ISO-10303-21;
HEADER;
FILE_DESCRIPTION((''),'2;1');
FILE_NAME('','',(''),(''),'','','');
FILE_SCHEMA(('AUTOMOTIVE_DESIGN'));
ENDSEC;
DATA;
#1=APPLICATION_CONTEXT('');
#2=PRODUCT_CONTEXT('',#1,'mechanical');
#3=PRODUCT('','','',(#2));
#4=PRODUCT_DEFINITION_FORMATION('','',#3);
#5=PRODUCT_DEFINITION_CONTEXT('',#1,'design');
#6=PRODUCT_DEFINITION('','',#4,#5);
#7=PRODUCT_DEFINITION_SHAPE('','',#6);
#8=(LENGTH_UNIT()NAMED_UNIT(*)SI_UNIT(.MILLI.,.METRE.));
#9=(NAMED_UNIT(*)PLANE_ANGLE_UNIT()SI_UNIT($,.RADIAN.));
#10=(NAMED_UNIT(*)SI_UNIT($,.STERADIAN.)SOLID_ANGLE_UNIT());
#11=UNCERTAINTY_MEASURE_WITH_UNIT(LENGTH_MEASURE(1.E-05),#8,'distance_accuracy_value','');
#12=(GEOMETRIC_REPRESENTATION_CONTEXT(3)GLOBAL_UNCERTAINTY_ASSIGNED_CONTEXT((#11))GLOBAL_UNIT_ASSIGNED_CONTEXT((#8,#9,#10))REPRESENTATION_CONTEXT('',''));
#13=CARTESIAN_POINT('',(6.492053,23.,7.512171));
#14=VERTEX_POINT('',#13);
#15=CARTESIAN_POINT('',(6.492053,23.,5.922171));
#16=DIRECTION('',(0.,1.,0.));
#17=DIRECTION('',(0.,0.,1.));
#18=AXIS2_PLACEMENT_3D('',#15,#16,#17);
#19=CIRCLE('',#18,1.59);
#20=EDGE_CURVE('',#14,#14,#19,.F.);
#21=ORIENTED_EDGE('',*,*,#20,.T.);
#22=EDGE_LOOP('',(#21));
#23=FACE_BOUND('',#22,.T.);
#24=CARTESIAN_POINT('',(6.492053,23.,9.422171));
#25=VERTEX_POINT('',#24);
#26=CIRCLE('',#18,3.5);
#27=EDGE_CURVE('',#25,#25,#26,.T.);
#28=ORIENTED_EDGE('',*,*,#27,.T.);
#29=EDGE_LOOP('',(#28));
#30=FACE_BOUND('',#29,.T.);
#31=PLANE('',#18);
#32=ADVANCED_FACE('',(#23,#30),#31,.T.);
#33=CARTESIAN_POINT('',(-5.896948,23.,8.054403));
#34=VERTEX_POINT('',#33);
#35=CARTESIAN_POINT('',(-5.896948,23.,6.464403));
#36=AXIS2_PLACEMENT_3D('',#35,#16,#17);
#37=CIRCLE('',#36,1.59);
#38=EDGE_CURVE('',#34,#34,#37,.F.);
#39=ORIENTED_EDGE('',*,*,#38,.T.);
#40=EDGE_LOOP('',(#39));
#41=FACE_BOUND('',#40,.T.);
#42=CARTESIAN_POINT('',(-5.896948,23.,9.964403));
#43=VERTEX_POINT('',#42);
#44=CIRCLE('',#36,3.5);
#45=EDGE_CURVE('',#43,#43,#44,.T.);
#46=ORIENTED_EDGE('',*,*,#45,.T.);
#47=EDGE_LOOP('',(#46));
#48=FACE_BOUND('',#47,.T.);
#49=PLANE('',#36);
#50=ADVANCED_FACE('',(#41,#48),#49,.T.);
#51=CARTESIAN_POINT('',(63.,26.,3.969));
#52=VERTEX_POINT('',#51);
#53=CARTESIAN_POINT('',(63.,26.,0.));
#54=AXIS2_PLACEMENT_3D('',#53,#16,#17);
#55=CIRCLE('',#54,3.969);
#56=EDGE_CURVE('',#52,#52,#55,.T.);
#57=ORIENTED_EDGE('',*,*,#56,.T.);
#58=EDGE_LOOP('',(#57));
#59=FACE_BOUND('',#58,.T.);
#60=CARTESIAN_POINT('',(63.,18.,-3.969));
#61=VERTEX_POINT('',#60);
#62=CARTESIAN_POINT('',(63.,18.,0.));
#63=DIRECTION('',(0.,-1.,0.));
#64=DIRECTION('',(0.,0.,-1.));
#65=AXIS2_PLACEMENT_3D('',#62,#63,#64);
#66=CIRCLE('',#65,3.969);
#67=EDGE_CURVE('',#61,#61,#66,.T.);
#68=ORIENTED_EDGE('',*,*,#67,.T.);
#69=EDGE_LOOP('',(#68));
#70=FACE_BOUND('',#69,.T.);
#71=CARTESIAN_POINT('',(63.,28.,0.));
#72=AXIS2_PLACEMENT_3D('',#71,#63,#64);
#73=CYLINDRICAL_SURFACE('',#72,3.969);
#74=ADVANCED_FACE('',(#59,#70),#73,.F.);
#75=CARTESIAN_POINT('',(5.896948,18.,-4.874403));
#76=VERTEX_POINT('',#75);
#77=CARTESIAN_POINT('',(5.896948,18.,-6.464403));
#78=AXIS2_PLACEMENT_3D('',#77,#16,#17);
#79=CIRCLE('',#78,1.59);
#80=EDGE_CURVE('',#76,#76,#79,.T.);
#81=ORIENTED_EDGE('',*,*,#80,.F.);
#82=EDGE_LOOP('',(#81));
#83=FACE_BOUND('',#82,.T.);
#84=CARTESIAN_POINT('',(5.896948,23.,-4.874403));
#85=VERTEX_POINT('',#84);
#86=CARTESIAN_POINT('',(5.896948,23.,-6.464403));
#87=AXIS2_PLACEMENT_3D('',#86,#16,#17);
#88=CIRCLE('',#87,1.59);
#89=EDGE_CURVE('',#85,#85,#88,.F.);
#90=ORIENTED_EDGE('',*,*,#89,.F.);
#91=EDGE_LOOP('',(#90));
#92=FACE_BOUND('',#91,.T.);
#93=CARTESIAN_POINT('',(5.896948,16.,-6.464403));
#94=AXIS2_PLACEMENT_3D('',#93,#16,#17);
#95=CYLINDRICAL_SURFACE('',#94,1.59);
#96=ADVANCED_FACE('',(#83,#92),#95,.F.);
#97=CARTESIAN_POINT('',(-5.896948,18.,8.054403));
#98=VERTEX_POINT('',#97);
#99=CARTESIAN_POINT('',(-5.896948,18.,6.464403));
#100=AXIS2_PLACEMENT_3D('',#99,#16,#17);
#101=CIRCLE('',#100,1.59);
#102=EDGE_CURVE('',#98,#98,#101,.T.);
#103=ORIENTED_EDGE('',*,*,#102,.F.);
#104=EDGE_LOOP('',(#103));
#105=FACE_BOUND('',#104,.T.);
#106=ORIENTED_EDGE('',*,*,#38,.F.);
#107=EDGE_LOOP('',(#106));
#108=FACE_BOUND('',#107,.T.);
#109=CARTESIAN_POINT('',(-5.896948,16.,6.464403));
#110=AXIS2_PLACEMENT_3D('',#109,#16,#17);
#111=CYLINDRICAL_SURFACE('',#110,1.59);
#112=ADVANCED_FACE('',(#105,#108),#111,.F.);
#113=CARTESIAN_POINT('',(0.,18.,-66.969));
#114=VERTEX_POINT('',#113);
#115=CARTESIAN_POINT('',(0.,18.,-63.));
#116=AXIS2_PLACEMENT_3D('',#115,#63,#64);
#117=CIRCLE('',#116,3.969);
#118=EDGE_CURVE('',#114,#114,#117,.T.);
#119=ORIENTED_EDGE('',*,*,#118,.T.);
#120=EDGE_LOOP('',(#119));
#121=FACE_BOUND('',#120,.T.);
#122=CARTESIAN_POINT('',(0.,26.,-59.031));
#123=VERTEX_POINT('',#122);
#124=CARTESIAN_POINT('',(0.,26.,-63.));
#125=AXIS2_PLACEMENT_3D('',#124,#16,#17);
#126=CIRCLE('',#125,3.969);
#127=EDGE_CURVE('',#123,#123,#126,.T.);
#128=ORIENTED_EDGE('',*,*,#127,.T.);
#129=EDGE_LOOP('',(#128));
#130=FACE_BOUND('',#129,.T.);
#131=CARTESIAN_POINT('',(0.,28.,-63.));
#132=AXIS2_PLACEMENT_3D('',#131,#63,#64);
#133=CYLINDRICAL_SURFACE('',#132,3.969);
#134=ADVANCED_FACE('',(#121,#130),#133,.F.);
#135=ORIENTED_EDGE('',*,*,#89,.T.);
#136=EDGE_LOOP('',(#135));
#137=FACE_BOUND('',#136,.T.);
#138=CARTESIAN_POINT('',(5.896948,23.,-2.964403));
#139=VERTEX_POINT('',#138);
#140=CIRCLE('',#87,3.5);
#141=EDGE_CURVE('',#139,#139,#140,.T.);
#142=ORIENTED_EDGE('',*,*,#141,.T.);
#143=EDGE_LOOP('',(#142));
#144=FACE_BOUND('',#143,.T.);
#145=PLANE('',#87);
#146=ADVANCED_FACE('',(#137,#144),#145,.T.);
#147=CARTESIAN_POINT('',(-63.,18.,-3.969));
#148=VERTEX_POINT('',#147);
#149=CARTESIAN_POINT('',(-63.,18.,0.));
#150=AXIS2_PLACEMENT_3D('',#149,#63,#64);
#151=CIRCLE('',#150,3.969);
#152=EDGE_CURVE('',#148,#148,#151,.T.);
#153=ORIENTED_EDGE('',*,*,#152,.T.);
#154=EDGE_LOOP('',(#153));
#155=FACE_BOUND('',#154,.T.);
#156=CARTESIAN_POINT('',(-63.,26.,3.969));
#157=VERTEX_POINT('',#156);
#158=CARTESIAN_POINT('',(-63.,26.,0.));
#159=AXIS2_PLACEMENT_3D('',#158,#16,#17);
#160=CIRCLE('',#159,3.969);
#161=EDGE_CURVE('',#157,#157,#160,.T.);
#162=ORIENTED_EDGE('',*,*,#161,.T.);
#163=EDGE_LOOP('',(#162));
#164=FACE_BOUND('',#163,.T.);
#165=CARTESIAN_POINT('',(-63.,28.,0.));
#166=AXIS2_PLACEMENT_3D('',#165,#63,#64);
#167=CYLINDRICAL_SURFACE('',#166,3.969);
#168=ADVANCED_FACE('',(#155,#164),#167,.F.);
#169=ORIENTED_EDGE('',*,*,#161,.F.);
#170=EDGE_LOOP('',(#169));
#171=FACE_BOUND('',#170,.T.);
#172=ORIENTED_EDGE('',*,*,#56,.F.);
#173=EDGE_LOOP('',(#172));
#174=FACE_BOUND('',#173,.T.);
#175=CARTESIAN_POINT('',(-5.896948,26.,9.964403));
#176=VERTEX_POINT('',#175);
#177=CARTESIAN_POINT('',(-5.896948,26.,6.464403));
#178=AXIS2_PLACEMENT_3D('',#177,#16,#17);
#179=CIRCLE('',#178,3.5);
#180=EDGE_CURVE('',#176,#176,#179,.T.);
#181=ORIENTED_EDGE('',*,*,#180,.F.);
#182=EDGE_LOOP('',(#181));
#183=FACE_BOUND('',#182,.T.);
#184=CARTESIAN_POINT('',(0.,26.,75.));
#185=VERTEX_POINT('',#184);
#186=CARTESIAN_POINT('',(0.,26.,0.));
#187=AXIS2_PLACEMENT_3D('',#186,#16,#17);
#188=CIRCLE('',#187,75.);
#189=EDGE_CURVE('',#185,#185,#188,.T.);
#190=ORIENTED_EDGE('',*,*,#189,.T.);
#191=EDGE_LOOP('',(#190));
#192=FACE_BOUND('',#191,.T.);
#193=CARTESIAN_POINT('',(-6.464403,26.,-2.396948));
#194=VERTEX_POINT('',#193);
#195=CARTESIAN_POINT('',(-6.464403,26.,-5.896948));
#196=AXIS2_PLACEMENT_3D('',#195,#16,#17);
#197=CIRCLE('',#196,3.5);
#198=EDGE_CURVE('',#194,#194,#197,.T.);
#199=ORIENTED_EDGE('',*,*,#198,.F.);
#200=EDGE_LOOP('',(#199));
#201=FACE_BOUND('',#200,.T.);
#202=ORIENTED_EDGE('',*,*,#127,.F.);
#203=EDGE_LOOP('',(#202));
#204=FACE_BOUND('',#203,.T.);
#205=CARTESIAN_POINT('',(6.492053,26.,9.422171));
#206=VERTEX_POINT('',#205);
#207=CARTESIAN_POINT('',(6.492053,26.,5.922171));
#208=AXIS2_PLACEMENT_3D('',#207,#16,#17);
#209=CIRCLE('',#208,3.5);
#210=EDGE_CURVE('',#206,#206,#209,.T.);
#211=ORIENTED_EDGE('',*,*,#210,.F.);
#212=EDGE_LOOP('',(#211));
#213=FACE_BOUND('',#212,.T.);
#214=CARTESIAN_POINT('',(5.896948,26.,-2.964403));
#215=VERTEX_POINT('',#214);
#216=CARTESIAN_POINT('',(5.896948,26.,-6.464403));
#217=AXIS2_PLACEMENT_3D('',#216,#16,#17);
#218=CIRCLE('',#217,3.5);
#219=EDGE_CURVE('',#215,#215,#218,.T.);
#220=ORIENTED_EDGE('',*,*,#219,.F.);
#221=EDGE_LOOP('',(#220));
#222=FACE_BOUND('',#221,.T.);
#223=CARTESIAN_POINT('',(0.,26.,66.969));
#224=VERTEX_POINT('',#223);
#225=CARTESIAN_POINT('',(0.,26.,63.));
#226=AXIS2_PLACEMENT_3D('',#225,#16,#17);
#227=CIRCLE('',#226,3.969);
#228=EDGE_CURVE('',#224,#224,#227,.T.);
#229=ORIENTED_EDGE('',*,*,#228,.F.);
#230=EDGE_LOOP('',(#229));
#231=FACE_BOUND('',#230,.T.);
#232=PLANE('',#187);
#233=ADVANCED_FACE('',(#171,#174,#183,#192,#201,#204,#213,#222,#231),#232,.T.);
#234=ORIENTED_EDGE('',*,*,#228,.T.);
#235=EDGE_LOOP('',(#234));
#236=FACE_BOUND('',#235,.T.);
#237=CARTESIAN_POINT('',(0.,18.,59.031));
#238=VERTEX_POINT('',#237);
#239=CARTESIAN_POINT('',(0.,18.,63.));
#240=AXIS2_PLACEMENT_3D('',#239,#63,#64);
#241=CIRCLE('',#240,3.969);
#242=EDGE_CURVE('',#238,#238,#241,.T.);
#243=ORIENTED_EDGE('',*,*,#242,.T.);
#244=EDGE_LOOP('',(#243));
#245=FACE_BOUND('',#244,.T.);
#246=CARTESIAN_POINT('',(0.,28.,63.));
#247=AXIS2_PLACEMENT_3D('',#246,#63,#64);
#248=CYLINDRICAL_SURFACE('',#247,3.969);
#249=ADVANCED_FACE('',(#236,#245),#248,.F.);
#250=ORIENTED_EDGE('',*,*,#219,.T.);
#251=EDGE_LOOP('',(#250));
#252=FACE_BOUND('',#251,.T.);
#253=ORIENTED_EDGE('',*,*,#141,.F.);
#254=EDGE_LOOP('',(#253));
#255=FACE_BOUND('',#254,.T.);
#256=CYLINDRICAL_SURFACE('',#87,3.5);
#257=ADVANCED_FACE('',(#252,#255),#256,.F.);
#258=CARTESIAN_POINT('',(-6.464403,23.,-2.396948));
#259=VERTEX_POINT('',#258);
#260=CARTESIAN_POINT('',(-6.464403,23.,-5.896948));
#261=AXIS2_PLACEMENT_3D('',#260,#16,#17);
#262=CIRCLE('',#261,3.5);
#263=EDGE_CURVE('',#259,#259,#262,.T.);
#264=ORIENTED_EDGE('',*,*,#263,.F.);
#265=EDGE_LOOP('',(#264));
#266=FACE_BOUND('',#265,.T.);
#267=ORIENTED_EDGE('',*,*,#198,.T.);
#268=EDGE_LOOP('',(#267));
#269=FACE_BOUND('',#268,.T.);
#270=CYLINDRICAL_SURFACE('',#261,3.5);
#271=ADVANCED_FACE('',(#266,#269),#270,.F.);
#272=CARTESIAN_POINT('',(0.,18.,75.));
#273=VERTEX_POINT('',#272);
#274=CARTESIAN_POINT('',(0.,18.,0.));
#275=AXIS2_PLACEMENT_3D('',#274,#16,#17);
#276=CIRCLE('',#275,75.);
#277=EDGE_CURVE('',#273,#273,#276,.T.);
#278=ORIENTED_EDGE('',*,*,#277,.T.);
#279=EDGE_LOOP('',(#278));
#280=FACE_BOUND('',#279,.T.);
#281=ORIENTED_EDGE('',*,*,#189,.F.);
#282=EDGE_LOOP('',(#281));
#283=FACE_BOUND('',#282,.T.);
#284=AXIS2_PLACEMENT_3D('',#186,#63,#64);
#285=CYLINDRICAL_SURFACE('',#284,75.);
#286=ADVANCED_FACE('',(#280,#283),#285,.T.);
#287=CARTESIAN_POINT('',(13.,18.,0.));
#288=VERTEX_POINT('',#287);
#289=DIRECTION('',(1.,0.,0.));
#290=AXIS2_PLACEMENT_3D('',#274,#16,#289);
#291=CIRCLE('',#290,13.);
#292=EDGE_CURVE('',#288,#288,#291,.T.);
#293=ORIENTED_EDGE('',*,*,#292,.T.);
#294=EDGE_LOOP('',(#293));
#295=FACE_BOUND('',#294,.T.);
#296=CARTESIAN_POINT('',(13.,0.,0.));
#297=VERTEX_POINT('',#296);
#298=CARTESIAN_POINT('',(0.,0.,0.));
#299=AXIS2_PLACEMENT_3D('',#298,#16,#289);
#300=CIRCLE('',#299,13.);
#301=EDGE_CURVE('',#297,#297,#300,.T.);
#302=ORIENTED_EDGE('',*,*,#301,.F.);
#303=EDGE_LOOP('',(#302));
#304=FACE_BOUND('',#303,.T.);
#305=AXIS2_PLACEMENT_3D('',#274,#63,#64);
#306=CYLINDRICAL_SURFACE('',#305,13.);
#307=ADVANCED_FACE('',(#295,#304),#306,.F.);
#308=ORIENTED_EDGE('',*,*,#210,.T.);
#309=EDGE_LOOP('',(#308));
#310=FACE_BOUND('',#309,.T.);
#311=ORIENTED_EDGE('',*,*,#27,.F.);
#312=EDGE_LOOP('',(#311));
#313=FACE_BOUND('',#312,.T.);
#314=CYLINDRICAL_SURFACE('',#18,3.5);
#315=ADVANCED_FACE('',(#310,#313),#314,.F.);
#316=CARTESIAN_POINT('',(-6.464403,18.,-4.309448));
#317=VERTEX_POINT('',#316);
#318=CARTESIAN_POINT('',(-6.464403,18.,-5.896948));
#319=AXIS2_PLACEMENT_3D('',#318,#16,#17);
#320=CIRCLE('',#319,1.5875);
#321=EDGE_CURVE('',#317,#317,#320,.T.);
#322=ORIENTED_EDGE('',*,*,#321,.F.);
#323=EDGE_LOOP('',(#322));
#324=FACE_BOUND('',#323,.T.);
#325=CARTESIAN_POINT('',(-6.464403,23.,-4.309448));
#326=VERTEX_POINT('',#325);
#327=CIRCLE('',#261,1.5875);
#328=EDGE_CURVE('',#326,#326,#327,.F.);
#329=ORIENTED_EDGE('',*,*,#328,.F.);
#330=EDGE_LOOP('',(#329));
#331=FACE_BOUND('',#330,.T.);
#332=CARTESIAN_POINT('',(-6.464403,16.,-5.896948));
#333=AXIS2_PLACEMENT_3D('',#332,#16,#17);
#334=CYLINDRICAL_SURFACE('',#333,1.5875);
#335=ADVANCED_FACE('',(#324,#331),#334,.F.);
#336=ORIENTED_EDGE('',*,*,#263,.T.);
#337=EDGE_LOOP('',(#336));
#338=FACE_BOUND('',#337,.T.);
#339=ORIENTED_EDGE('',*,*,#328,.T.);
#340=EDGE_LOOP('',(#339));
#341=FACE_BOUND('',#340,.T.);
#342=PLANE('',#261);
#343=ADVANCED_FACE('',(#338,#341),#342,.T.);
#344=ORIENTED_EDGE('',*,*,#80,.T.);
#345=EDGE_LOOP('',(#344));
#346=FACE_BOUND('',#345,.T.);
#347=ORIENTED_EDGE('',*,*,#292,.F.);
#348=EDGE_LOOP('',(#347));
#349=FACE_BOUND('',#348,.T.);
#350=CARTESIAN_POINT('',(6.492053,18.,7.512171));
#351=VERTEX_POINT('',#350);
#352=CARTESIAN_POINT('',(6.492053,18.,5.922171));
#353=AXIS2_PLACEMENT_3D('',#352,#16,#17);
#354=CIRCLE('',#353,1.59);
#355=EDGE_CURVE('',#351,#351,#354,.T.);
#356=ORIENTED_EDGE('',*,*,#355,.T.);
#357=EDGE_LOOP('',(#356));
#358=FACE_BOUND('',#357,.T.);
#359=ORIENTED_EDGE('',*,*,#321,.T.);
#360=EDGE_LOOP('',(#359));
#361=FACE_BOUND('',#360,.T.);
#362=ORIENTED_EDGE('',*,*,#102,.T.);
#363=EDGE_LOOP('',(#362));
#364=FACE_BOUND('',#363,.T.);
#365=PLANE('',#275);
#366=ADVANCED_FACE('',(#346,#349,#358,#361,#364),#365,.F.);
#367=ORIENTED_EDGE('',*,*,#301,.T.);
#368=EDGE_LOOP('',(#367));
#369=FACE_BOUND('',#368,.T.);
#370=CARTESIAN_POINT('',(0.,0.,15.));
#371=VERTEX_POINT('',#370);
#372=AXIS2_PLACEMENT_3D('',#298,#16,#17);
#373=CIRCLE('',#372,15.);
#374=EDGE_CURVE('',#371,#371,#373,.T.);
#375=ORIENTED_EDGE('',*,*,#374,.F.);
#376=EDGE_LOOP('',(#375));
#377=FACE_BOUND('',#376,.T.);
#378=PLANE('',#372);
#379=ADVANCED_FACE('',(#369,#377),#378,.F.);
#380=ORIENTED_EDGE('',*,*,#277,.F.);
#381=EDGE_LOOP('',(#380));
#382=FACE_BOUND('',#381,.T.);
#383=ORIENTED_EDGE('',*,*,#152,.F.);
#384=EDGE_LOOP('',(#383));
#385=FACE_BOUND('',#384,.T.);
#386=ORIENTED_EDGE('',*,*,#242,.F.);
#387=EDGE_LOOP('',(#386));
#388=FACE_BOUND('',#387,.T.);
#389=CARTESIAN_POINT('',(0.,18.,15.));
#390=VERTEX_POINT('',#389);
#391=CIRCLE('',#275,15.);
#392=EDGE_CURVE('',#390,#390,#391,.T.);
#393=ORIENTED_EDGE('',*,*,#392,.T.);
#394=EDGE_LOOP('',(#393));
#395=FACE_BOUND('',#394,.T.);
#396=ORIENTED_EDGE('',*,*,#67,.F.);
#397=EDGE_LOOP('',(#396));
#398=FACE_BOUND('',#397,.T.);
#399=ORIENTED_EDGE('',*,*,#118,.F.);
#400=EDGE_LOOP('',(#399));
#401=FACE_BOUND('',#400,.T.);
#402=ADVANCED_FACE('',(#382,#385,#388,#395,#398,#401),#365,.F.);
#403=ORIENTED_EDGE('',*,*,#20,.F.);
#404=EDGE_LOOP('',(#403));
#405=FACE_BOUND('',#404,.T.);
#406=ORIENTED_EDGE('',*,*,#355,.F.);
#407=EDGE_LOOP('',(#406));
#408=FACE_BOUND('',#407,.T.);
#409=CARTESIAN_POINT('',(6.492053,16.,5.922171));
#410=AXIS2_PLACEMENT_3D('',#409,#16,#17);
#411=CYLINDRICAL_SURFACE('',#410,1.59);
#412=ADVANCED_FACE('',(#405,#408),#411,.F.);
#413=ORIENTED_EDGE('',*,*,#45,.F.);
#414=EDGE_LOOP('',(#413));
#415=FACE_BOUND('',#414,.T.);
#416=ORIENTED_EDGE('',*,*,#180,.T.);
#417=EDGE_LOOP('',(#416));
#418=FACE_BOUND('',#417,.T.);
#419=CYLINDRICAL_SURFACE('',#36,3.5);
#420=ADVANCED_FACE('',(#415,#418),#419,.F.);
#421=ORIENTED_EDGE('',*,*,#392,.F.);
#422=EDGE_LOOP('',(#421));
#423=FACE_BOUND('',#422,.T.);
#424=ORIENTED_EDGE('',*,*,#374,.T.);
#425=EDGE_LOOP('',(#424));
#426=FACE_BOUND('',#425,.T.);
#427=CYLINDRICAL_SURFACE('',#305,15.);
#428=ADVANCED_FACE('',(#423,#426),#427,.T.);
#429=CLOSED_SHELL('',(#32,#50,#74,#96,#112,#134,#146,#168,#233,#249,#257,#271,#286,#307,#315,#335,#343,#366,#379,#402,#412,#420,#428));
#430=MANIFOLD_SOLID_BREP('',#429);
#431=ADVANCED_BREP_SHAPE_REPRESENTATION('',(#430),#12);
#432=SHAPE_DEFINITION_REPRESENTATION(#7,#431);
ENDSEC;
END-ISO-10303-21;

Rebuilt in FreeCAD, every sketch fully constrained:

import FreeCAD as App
import Part
import Sketcher
from FreeCAD import Vector
Q = App.Units.Quantity

doc = App.newDocument("Part")
params = doc.addObject("Spreadsheet::Sheet", "Params")
for row, (alias, value) in enumerate([
    ("sketch1_diameter", "30 mm"),
    ("sketch1_diameter2", "26 mm"),
    ("pad1_length", "18 mm"),
    ("sketch2_diameter", "150 mm"),
    ("pad2_length", "8 mm"),
    ("sketch3_diameter", "3.18 mm"),
    ("pocket1_length", "10 mm"),
    ("pocket2_length", "10 mm"),
    ("sketch5_diameter", "7 mm"),
    ("pocket3_length", "3 mm"),
], start=1):
    params.set(f"A{row}", alias)
    params.set(f"B{row}", "=" + value)
    params.setAlias(f"B{row}", alias)

body = doc.addObject("PartDesign::Body", "Body")

sketch1 = body.newObject("Sketcher::SketchObject", "Sketch")
sketch1.AttachmentSupport = (doc.getObject("XZ_Plane"), [""])
sketch1.MapMode = "FlatFace"
sketch1.addGeometry(Part.Circle(Vector(0, 0, 0), Vector(0, 0, 1), 15), False)
sketch1.addGeometry(Part.Circle(Vector(0, 0, 0), Vector(0, 0, 1), 13), False)
sketch1.addConstraint(Sketcher.Constraint("Coincident", 0, 3, -1, 1))
sketch1.addConstraint(Sketcher.Constraint("Coincident", 1, 3, -1, 1))
sketch1.addConstraint(Sketcher.Constraint("Diameter", 0, Q("30 mm")))
sketch1.addConstraint(Sketcher.Constraint("Diameter", 1, Q("26 mm")))
sketch1.setExpression("Constraints[2]", "Params.sketch1_diameter")
sketch1.setExpression("Constraints[3]", "Params.sketch1_diameter2")
pad1 = body.newObject("PartDesign::Pad", "Pad")
pad1.Profile = sketch1
pad1.setExpression("Length", "Params.pad1_length")
pad1.Reversed = True

sketch2 = body.newObject("Sketcher::SketchObject", "Sketch001")
sketch2.AttachmentSupport = (doc.getObject("XZ_Plane"), [""])
sketch2.MapMode = "FlatFace"
sketch2.AttachmentOffset = App.Placement(Vector(0, 0, -18), App.Rotation())
sketch2.addGeometry(Part.Circle(Vector(0, 0, 0), Vector(0, 0, 1), 75), False)
sketch2.addConstraint(Sketcher.Constraint("Coincident", 0, 3, -1, 1))
sketch2.addConstraint(Sketcher.Constraint("Diameter", 0, Q("150 mm")))
sketch2.setExpression("Constraints[1]", "Params.sketch2_diameter")
pad2 = body.newObject("PartDesign::Pad", "Pad001")
pad2.Profile = sketch2
pad2.setExpression("Length", "Params.pad2_length")
pad2.Reversed = True

sketch3 = body.newObject("Sketcher::SketchObject", "Sketch002")
sketch3.AttachmentSupport = (doc.getObject("XZ_Plane"), [""])
sketch3.MapMode = "FlatFace"
sketch3.AttachmentOffset = App.Placement(Vector(0, 0, -26), App.Rotation())
sketch3.addGeometry(Part.Circle(Vector(5.9, -6.5, 0), Vector(0, 0, 1), 1.6), False)
sketch3.addGeometry(Part.Circle(Vector(-5.9, 6.5, 0), Vector(0, 0, 1), 1.6), False)
sketch3.addGeometry(Part.Circle(Vector(6.5, 5.9, 0), Vector(0, 0, 1), 1.6), False)
sketch3.addGeometry(Part.Circle(Vector(-6.5, -5.9, 0), Vector(0, 0, 1), 1.6), False)
sketch3.addConstraint(Sketcher.Constraint("Equal", 0, 1))
sketch3.addConstraint(Sketcher.Constraint("Equal", 1, 2))
sketch3.addConstraint(Sketcher.Constraint("Symmetric", 0, 3, 1, 3, -1, 1))
sketch3.addConstraint(Sketcher.Constraint("Diameter", 0, Q("3.18 mm")))
sketch3.addConstraint(Sketcher.Constraint("Diameter", 3, Q("3.175 mm")))
sketch3.addConstraint(Sketcher.Constraint("DistanceX", 1, 3, 2, 3, Q("12.389001 mm")))
sketch3.addConstraint(Sketcher.Constraint("DistanceY", -1, 1, 2, 3, Q("5.922171 mm")))
sketch3.addConstraint(Sketcher.Constraint("DistanceX", 3, 3, 0, 3, Q("12.361351 mm")))
sketch3.addConstraint(Sketcher.Constraint("DistanceY", 3, 3, 1, 3, Q("12.361351 mm")))
sketch3.addConstraint(Sketcher.Constraint("DistanceY", 3, 3, 2, 3, Q("11.819118 mm")))
sketch3.addConstraint(Sketcher.Constraint("DistanceX", -1, 1, 0, 3, Q("5.896948 mm")))
sketch3.setExpression("Constraints[3]", "Params.sketch3_diameter")
pocket1 = body.newObject("PartDesign::Pocket", "Pocket")
pocket1.Profile = sketch3
pocket1.setExpression("Length", "Params.pocket1_length")
pocket1.Reversed = True

sketch4 = body.newObject("Sketcher::SketchObject", "Sketch003")
sketch4.AttachmentSupport = (doc.getObject("XZ_Plane"), [""])
sketch4.MapMode = "FlatFace"
sketch4.AttachmentOffset = App.Placement(Vector(0, 0, -18), App.Rotation())
sketch4.addGeometry(Part.Circle(Vector(0, -63, 0), Vector(0, 0, 1), 4), False)
sketch4.addGeometry(Part.Circle(Vector(-63, 0, 0), Vector(0, 0, 1), 4), False)
sketch4.addGeometry(Part.Circle(Vector(0, 63, 0), Vector(0, 0, 1), 4), False)
sketch4.addGeometry(Part.Circle(Vector(63, 0, 0), Vector(0, 0, 1), 4), False)
sketch4.addConstraint(Sketcher.Constraint("Equal", 0, 1))
sketch4.addConstraint(Sketcher.Constraint("Equal", 1, 2))
sketch4.addConstraint(Sketcher.Constraint("Equal", 2, 3))
sketch4.addConstraint(Sketcher.Constraint("Symmetric", 0, 3, 2, 3, -1, 1))
sketch4.addConstraint(Sketcher.Constraint("Symmetric", 1, 3, 3, 3, -1, 1))
sketch4.addConstraint(Sketcher.Constraint("PointOnObject", 0, 3, -2))
sketch4.addConstraint(Sketcher.Constraint("PointOnObject", 1, 3, -1))
sketch4.addConstraint(Sketcher.Constraint("Diameter", 0, Q("7.938 mm")))
sketch4.addConstraint(Sketcher.Constraint("DistanceY", 0, 3, -1, 1, Q("63 mm")))
sketch4.addConstraint(Sketcher.Constraint("DistanceX", 1, 3, -1, 1, Q("63 mm")))
pocket2 = body.newObject("PartDesign::Pocket", "Pocket001")
pocket2.Profile = sketch4
pocket2.setExpression("Length", "Params.pocket2_length")

sketch5 = body.newObject("Sketcher::SketchObject", "Sketch004")
sketch5.AttachmentSupport = (doc.getObject("XZ_Plane"), [""])
sketch5.MapMode = "FlatFace"
sketch5.AttachmentOffset = App.Placement(Vector(0, 0, -26), App.Rotation())
sketch5.addGeometry(Part.Circle(Vector(5.9, -6.5, 0), Vector(0, 0, 1), 3.5), False)
sketch5.addGeometry(Part.Circle(Vector(-6.5, -5.9, 0), Vector(0, 0, 1), 3.5), False)
sketch5.addGeometry(Part.Circle(Vector(-5.9, 6.5, 0), Vector(0, 0, 1), 3.5), False)
sketch5.addGeometry(Part.Circle(Vector(6.5, 5.9, 0), Vector(0, 0, 1), 3.5), False)
sketch5.addConstraint(Sketcher.Constraint("Equal", 0, 1))
sketch5.addConstraint(Sketcher.Constraint("Equal", 1, 2))
sketch5.addConstraint(Sketcher.Constraint("Equal", 2, 3))
sketch5.addConstraint(Sketcher.Constraint("Symmetric", 0, 3, 2, 3, -1, 1))
sketch5.addConstraint(Sketcher.Constraint("Diameter", 0, Q("7 mm")))
sketch5.addConstraint(Sketcher.Constraint("DistanceX", 2, 3, 3, 3, Q("12.389001 mm")))
sketch5.addConstraint(Sketcher.Constraint("DistanceY", -1, 1, 3, 3, Q("5.922171 mm")))
sketch5.addConstraint(Sketcher.Constraint("DistanceX", 1, 3, 0, 3, Q("12.361351 mm")))
sketch5.addConstraint(Sketcher.Constraint("DistanceY", 1, 3, 2, 3, Q("12.361351 mm")))
sketch5.addConstraint(Sketcher.Constraint("DistanceY", 1, 3, 3, 3, Q("11.819118 mm")))
sketch5.addConstraint(Sketcher.Constraint("DistanceX", -1, 1, 0, 3, Q("5.896948 mm")))
sketch5.setExpression("Constraints[4]", "Params.sketch5_diameter")
pocket3 = body.newObject("PartDesign::Pocket", "Pocket002")
pocket3.Profile = sketch5
pocket3.setExpression("Length", "Params.pocket3_length")
pocket3.Reversed = True

doc.recompute()
